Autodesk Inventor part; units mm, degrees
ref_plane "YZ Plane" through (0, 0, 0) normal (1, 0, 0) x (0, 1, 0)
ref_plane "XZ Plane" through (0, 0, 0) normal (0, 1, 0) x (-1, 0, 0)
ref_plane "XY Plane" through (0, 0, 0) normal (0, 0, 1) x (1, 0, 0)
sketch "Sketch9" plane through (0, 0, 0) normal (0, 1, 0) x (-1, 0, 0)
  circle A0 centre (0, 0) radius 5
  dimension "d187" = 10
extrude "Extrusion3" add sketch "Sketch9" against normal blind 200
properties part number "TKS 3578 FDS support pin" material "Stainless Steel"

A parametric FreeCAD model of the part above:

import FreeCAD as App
import Part
import Sketcher

doc = App.newDocument("Part")
body = doc.addObject("PartDesign::Body", "Body")

# Sketch on XZ plane
sketch1 = doc.addObject("Sketcher::SketchObject", "Sketch")
body.addObject(sketch1)
sketch1.AttachmentSupport = (doc.XZ_Plane, [""])
sketch1.MapMode = "FlatFace"
sketch1.addGeometry(Part.Circle(App.Vector(0, 0, 0), App.Vector(0, 0, 1), 5), False)
sketch1.addConstraint([
    Sketcher.Constraint("Coincident", 0, 3, -1, 1),
    Sketcher.Constraint("Diameter", 0, 10.0),
])
pad1 = doc.addObject("PartDesign::Pad", "Pad")
body.addObject(pad1)
pad1.Profile = sketch1
pad1.Length = 200

doc.recompute()
